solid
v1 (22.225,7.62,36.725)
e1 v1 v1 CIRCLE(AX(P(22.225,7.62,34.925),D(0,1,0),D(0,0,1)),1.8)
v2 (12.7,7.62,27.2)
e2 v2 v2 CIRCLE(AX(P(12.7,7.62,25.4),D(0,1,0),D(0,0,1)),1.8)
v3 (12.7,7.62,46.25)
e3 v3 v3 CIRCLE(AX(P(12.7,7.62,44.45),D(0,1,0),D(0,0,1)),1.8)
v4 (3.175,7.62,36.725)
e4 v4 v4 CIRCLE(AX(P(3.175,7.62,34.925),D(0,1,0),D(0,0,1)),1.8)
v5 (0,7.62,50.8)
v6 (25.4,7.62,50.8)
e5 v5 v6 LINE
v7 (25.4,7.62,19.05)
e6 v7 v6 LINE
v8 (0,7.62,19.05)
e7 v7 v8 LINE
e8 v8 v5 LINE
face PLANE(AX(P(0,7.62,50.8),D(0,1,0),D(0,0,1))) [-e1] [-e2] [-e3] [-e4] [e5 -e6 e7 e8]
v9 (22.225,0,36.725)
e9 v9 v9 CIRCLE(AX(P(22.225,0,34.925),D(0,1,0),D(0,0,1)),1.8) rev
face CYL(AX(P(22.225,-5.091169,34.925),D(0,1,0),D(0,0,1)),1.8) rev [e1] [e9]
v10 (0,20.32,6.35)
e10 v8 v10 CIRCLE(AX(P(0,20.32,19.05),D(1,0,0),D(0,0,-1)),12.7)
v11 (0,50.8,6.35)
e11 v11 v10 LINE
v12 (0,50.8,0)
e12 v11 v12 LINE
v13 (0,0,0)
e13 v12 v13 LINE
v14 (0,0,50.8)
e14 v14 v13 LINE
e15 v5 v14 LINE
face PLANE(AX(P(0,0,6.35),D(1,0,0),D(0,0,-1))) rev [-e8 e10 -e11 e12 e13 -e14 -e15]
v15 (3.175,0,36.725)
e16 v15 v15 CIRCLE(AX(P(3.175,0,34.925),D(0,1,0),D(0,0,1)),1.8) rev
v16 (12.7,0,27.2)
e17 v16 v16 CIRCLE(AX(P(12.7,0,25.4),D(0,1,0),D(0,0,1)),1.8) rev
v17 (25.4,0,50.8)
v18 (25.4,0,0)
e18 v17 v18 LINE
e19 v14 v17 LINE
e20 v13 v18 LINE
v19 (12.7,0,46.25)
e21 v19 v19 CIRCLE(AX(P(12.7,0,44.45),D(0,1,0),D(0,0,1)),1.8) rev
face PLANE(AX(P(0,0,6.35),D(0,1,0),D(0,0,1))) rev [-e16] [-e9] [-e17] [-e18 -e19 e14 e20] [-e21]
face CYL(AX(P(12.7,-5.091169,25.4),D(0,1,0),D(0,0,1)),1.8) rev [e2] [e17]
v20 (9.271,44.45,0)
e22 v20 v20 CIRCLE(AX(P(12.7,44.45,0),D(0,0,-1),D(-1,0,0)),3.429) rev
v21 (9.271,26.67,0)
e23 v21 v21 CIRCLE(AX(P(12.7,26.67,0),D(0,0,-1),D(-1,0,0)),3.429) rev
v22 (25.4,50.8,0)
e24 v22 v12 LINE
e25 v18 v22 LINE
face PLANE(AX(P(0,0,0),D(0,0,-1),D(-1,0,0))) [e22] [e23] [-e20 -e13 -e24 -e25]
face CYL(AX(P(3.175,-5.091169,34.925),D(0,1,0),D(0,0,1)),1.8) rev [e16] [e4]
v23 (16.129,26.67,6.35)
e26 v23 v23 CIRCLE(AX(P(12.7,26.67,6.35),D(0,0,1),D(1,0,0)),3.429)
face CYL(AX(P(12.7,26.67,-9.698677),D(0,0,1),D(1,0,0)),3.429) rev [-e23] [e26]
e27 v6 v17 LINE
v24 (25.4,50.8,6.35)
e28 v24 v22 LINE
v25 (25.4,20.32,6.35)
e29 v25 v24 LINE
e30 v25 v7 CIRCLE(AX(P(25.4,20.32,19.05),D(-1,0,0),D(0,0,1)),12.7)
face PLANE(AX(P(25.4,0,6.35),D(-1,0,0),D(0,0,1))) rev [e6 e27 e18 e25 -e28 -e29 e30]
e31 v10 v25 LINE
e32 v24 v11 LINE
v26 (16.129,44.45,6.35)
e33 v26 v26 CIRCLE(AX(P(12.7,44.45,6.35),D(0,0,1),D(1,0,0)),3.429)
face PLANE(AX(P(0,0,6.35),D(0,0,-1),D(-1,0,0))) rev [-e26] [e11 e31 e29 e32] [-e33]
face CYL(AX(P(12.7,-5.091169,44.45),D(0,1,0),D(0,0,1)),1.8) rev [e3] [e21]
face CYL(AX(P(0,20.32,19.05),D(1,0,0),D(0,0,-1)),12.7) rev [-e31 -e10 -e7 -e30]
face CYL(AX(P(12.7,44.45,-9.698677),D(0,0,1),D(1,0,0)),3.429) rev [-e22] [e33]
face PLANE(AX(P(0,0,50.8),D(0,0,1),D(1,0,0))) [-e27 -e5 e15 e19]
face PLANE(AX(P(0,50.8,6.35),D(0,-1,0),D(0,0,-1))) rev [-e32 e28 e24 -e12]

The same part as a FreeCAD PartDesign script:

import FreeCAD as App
import Part
import Sketcher
Q = App.Units.Quantity


def edges_at(feature, points):
    """Names of the edges that pass closest to the given points."""
    edges = feature.Shape.Edges
    near = lambda p: min(range(len(edges)), key=lambda i: edges[i].distToShape(Part.Vertex(*p))[0])
    return sorted({f"Edge{near(p) + 1}" for p in points})


def add_polygon(sketch, points):
    """Adds a closed chain of lines whose ends are joined by coincident constraints."""
    first, n = sketch.GeometryCount, len(points)
    for a, b in zip(points, points[1:] + points[:1]):
        sketch.addGeometry(Part.LineSegment(App.Vector(*a, 0), App.Vector(*b, 0)), False)
    for i in range(n):
        sketch.addConstraint(Sketcher.Constraint("Coincident", first + i, 2, first + (i + 1) % n, 1))

doc = App.newDocument("Part")
body = doc.addObject("PartDesign::Body", "Body")

# Sketch on XY plane
sketch1 = body.newObject("Sketcher::SketchObject", "Sketch")
sketch1.AttachmentSupport = (doc.getObject("XY_Plane"), [""])
sketch1.MapMode = "FlatFace"
add_polygon(sketch1, [(0, 50.8), (0, 0), (25.4, 0), (25.4, 50.8)])  # lines 0-3
sketch1.addConstraint([
    Sketcher.Constraint("Vertical", 0),
    Sketcher.Constraint("Horizontal", 1),
    Sketcher.Constraint("Vertical", 2),
    Sketcher.Constraint("Horizontal", 3),
    Sketcher.Constraint("Coincident", 0, 2, -1, 1),
    Sketcher.Constraint("DistanceX", 1, 1, 1, 2, Q("1 in")),
    Sketcher.Constraint("DistanceY", 0, 2, 0, 1, Q("2 in")),
])
pad1 = body.newObject("PartDesign::Pad", "Pad")
pad1.Profile = sketch1
pad1.Length = Q("0.25 in")

# Sketch on YZ plane
sketch2 = body.newObject("Sketcher::SketchObject", "Sketch001")
sketch2.AttachmentSupport = (doc.getObject("YZ_Plane"), [""])
sketch2.MapMode = "FlatFace"
sketch2.AttachmentOffset = App.Placement(App.Vector(0, 0, 1 * 25.4), App.Rotation())
add_polygon(sketch2, [(7.62, 50.8), (0, 50.8), (0, 6.35), (7.62, 6.35)])  # lines 0-3
sketch2.addConstraint([
    Sketcher.Constraint("Horizontal", 0),
    Sketcher.Constraint("Vertical", 1),
    Sketcher.Constraint("Horizontal", 2),
    Sketcher.Constraint("Vertical", 3),
    Sketcher.Constraint("PointOnObject", 0, 2, -2),
    Sketcher.Constraint("DistanceX", 0, 2, 0, 1, Q("0.3 in")),
    Sketcher.Constraint("DistanceY", -1, 1, 0, 2, Q("2 in")),
    Sketcher.Constraint("DistanceY", 1, 2, 1, 1, Q("1.75 in")),
])
pad2 = body.newObject("PartDesign::Pad", "Pad001")
pad2.Profile = sketch2
pad2.Length = Q("1 in")
pad2.Reversed = True
doc.recompute()

fillet = body.newObject("PartDesign::Fillet", "Fillet")
fillet.Base = (pad2, edges_at(pad2, [(12.7, 7.62, 6.35)]))
fillet.Radius = Q("0.5 in")

# Sketch on XY plane
sketch3 = body.newObject("Sketcher::SketchObject", "Sketch002")
sketch3.AttachmentSupport = (doc.getObject("XY_Plane"), [""])
sketch3.MapMode = "FlatFace"
sketch3.AttachmentOffset = App.Placement(App.Vector(0, 0, 0.25 * 25.4), App.Rotation())
sketch3.addGeometry([
    Part.Circle(App.Vector(12.7, 44.45, 0), App.Vector(0, 0, 1), 3.429),
    Part.Circle(App.Vector(12.7, 26.67, 0), App.Vector(0, 0, 1), 3.429),
], False)
sketch3.addConstraint([
    Sketcher.Constraint("Equal", 0, 1),
    Sketcher.Constraint("Vertical", 0, 3, 1, 3),
    Sketcher.Constraint("Diameter", 0, Q("0.27 in")),
    Sketcher.Constraint("DistanceX", -1, 1, 0, 3, Q("0.5 in")),
    Sketcher.Constraint("DistanceY", 1, 3, 0, 3, Q("0.7 in")),
    Sketcher.Constraint("DistanceY", -1, 1, 0, 3, Q("1.75 in")),
])
pocket1 = body.newObject("PartDesign::Pocket", "Pocket")
pocket1.Profile = sketch3
pocket1.Length = Q("0.25 in")

# Sketch on XZ plane
sketch4 = body.newObject("Sketcher::SketchObject", "Sketch003")
sketch4.AttachmentSupport = (doc.getObject("XZ_Plane"), [""])
sketch4.MapMode = "FlatFace"
sketch4.AttachmentOffset = App.Placement(App.Vector(0, 0, -0.3 * 25.4), App.Rotation())
sketch4.addGeometry([
    Part.Circle(App.Vector(12.7, 25.4, 0), App.Vector(0, 0, 1), 1.8),
    Part.Circle(App.Vector(22.225, 34.925, 0), App.Vector(0, 0, 1), 1.8),
    Part.Circle(App.Vector(12.7, 44.45, 0), App.Vector(0, 0, 1), 1.8),
    Part.Circle(App.Vector(3.175, 34.925, 0), App.Vector(0, 0, 1), 1.8),
], False)
sketch4.addConstraint([
    Sketcher.Constraint("Equal", 0, 1),
    Sketcher.Constraint("Equal", 1, 2),
    Sketcher.Constraint("Equal", 2, 3),
    Sketcher.Constraint("Horizontal", 1, 3, 3, 3),
    Sketcher.Constraint("Vertical", 0, 3, 2, 3),
    Sketcher.Constraint("DistanceY", -1, 1, 0, 3, Q("1 in")),
    Sketcher.Constraint("DistanceX", -1, 1, 0, 3, Q("0.5 in")),
    Sketcher.Constraint("Diameter", 0, Q("3.6 mm")),
    Sketcher.Constraint("DistanceY", -1, 1, 2, 3, Q("1.75 in")),
    Sketcher.Constraint("DistanceX", 3, 3, 1, 3, Q("0.75 in")),
    Sketcher.Constraint("DistanceX", -1, 1, 1, 3, Q("0.875 in")),
    Sketcher.Constraint("DistanceY", -1, 1, 1, 3, Q("1.375 in")),
])
pocket2 = body.newObject("PartDesign::Pocket", "Pocket001")
pocket2.Profile = sketch4
pocket2.Length = Q("0.3 in")
pocket2.Reversed = True

doc.recompute()
